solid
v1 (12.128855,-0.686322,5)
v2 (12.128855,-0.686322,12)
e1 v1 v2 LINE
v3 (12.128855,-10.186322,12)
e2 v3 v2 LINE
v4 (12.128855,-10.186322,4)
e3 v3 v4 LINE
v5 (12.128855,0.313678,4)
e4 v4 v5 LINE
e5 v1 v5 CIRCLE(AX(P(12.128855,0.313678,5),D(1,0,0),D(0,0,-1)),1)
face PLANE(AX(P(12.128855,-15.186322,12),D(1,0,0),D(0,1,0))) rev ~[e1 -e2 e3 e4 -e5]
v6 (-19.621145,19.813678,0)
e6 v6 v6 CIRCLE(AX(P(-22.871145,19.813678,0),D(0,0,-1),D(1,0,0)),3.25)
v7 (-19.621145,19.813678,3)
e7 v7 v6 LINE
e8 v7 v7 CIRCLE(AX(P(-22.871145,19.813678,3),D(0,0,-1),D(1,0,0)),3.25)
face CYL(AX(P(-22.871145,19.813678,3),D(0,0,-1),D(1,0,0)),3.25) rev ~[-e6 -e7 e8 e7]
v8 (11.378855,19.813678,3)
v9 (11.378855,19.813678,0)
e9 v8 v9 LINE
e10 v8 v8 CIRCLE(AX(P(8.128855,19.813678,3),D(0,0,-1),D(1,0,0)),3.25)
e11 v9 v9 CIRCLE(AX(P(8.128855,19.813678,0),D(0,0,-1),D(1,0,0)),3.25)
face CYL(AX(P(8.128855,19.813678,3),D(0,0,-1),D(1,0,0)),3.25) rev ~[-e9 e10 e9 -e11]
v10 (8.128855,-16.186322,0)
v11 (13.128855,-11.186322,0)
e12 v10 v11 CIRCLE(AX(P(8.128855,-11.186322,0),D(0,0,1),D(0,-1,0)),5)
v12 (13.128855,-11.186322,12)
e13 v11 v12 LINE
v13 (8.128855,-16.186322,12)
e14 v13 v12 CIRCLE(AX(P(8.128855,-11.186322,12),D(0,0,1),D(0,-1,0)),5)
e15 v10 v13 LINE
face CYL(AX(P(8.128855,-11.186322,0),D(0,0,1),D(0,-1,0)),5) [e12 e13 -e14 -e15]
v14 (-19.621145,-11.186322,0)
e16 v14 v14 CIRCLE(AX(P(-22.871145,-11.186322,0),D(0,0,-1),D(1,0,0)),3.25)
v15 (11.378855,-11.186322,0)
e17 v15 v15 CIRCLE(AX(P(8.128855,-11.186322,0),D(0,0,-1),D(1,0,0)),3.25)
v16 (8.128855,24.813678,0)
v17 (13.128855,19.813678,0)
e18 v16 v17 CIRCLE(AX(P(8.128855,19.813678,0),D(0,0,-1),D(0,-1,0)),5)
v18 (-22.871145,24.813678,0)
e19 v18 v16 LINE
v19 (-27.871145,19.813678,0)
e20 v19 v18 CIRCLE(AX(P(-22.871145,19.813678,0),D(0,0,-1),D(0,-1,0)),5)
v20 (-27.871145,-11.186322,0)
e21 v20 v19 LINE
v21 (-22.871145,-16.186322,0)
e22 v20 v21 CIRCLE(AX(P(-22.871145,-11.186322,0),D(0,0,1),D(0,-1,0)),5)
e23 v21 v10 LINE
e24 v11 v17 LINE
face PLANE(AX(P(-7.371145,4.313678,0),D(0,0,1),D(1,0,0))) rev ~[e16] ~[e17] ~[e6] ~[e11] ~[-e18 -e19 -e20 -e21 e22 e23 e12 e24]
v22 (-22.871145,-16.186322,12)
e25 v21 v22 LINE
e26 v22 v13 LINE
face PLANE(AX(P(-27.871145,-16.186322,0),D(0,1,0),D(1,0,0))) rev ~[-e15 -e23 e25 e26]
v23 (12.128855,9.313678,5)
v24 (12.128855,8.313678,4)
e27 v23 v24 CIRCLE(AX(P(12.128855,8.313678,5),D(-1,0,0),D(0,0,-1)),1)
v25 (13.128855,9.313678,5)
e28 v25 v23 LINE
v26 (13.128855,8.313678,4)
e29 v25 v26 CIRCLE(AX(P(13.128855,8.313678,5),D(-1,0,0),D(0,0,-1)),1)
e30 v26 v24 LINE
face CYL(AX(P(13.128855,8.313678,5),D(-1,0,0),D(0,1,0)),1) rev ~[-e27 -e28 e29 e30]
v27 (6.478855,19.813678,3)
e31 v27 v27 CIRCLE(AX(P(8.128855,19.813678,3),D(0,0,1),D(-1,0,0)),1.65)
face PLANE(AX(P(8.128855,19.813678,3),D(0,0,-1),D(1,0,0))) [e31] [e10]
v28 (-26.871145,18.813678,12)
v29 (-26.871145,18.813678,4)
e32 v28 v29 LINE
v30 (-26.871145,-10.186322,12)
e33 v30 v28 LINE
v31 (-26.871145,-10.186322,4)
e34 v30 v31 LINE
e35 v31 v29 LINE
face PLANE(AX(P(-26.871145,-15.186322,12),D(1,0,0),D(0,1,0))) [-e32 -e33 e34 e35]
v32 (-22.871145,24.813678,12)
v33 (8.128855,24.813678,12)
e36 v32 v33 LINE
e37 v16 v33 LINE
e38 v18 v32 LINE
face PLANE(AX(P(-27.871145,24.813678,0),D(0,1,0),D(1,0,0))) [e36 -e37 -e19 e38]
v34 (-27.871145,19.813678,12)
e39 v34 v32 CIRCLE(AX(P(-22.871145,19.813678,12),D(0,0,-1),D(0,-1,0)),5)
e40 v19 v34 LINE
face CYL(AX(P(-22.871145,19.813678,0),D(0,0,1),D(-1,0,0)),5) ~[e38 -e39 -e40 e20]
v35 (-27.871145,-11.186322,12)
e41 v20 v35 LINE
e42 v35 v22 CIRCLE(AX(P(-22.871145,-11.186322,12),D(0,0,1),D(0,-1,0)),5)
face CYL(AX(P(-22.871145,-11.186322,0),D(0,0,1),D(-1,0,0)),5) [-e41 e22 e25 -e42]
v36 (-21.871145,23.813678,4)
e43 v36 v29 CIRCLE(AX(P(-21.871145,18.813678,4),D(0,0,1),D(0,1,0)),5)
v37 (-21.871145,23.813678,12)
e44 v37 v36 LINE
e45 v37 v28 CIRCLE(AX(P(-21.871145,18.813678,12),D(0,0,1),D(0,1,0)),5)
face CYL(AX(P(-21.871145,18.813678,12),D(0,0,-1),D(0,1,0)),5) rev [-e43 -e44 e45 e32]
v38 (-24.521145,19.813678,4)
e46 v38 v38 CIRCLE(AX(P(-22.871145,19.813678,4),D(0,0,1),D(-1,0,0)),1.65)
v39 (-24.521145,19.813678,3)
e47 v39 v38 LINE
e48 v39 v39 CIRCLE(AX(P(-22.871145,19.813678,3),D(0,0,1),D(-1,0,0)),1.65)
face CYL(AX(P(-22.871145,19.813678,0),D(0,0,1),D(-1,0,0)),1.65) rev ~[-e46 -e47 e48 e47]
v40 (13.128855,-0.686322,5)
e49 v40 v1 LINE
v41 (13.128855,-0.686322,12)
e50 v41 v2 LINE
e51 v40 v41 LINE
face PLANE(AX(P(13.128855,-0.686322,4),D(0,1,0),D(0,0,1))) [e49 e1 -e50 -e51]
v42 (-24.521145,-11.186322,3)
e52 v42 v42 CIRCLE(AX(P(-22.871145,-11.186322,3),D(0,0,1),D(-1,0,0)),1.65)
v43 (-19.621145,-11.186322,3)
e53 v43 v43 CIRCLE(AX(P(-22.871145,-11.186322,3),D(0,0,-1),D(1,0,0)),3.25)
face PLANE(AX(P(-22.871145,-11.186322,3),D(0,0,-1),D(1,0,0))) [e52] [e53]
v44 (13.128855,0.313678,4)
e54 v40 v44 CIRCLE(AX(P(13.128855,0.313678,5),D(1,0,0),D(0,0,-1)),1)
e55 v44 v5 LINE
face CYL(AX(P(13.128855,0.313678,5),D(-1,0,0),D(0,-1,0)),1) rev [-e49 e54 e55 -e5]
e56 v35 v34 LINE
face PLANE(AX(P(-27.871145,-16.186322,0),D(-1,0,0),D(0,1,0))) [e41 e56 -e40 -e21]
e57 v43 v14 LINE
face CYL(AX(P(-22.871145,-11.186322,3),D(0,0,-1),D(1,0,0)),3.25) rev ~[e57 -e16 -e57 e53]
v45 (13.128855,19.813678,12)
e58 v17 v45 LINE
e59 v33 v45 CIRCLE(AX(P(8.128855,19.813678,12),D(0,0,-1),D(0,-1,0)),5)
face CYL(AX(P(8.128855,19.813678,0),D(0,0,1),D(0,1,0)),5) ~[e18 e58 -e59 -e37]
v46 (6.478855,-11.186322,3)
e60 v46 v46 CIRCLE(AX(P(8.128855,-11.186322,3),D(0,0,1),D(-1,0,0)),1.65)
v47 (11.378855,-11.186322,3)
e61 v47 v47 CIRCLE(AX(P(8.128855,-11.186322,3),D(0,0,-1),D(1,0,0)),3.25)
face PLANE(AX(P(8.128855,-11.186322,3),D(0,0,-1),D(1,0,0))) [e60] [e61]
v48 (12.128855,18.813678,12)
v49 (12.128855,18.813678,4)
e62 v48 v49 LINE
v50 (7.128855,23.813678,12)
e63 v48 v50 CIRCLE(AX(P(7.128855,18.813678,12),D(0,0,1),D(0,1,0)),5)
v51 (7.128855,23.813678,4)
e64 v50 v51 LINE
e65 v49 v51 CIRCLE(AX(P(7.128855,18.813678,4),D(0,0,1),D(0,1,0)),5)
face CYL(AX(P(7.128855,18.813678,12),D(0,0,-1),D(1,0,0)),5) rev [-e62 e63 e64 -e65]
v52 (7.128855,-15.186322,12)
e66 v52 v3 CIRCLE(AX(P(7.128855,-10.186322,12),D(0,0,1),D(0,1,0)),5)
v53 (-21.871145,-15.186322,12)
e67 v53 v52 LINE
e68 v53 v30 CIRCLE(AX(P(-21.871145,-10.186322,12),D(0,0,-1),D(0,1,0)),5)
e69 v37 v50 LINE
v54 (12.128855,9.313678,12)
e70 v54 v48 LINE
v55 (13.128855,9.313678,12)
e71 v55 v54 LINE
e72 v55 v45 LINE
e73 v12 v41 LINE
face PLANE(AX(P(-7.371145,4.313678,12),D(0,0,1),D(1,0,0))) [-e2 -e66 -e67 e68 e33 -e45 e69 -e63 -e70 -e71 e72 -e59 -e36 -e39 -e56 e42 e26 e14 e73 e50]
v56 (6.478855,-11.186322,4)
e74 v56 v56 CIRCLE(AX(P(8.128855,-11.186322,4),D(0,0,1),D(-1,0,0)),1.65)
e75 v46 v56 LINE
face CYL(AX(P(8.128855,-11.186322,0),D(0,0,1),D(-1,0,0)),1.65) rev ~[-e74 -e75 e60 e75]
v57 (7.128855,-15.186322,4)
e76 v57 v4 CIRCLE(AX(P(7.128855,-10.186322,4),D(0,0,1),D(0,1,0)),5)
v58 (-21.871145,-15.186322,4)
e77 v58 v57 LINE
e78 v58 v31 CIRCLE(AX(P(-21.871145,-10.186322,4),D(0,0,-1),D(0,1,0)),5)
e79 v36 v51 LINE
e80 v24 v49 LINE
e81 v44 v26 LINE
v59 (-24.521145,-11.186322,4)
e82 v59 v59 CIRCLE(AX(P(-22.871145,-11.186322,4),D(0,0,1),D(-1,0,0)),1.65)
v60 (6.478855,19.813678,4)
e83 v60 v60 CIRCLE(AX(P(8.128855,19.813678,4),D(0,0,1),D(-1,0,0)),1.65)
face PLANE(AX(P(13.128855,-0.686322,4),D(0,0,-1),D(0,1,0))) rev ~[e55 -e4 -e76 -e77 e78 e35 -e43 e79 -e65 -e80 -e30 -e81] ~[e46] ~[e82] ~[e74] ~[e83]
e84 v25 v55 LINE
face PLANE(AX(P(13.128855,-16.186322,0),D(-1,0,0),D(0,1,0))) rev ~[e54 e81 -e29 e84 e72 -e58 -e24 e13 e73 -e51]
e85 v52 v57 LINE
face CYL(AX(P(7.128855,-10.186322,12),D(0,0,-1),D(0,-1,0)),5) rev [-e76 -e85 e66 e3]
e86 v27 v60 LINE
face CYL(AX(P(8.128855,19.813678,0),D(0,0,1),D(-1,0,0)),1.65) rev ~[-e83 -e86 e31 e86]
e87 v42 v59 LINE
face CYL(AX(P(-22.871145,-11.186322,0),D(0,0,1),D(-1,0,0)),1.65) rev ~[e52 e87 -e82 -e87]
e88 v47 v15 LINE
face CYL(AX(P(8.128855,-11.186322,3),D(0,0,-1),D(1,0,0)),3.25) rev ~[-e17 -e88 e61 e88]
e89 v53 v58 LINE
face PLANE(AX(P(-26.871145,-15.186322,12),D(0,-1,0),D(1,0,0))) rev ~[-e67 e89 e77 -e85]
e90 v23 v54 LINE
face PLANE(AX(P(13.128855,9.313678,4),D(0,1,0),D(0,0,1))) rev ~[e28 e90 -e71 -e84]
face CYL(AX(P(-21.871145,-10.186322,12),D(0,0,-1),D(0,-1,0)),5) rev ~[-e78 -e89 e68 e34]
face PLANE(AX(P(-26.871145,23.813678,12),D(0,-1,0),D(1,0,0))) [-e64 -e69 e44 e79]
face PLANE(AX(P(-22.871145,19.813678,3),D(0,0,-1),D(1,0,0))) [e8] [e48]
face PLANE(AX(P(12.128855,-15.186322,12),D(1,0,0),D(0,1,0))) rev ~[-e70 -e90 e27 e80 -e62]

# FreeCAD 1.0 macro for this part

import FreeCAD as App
import Part
import Sketcher
from FreeCAD import Vector
Q = App.Units.Quantity


def edges_at(feature, points):
    """Names of the edges that pass closest to the given points."""
    edges = feature.Shape.Edges
    near = lambda p: min(range(len(edges)), key=lambda i: edges[i].distToShape(Part.Vertex(*p))[0])
    return sorted({f"Edge{near(p) + 1}" for p in points})


def add_polygon(sketch, points):
    """Adds a closed chain of lines whose ends are joined by coincident constraints."""
    first, n = sketch.GeometryCount, len(points)
    for a, b in zip(points, points[1:] + points[:1]):
        sketch.addGeometry(Part.LineSegment(App.Vector(*a, 0), App.Vector(*b, 0)), False)
    for i in range(n):
        sketch.addConstraint(Sketcher.Constraint("Coincident", first + i, 2, first + (i + 1) % n, 1))

doc = App.newDocument("Part")
body = doc.addObject("PartDesign::Body", "Body")

# Sketch on XY plane
sketch1 = body.newObject("Sketcher::SketchObject", "Sketch")
sketch1.AttachmentSupport = (doc.getObject("XY_Plane"), [""])
sketch1.MapMode = "FlatFace"
add_polygon(sketch1, [(-27.871145, 24.813678), (-27.871145, -16.186322), (13.128855, -16.186322), (13.128855, 24.813678)])  # lines 0-3
sketch1.addConstraint([
    Sketcher.Constraint("Vertical", 0),
    Sketcher.Constraint("Horizontal", 1),
    Sketcher.Constraint("Vertical", 2),
    Sketcher.Constraint("Horizontal", 3),
    Sketcher.Constraint("Equal", 3, 0),
    Sketcher.Constraint("DistanceX", 1, 1, 1, 2, Q("41 mm")),
    Sketcher.Constraint("DistanceY", 0, 2, -1, 1, Q("16.186322 mm")),
    Sketcher.Constraint("DistanceX", 0, 2, -1, 1, Q("27.871145 mm")),
])
pad1 = body.newObject("PartDesign::Pad", "Pad")
pad1.Profile = sketch1
pad1.Length = 12

# Sketch on XY plane
sketch2 = body.newObject("Sketcher::SketchObject", "Sketch001")
sketch2.AttachmentSupport = (doc.getObject("XY_Plane"), [""])
sketch2.MapMode = "FlatFace"
sketch2.addGeometry([
    Part.Circle(Vector(8.128855, 19.813678, 0), Vector(0, 0, 1), 1.65),
    Part.Circle(Vector(-22.871145, 19.813678, 0), Vector(0, 0, 1), 1.65),
    Part.Circle(Vector(-22.871145, -11.186322, 0), Vector(0, 0, 1), 1.65),
    Part.Circle(Vector(8.128855, -11.186322, 0), Vector(0, 0, 1), 1.65),
], False)
sketch2.addConstraint([
    Sketcher.Constraint("Equal", 0, 1),
    Sketcher.Constraint("Equal", 1, 2),
    Sketcher.Constraint("Equal", 2, 3),
    Sketcher.Constraint("Horizontal", 0, 3, 1, 3),
    Sketcher.Constraint("Horizontal", 2, 3, 3, 3),
    Sketcher.Constraint("Vertical", 1, 3, 2, 3),
    Sketcher.Constraint("Vertical", 0, 3, 3, 3),
    Sketcher.Constraint("Diameter", 0, Q("3.3 mm")),
    Sketcher.Constraint("DistanceX", 1, 3, 0, 3, Q("31 mm")),
    Sketcher.Constraint("DistanceY", 2, 3, 1, 3, Q("31 mm")),
    Sketcher.Constraint("DistanceY", -1, 1, 0, 3, Q("19.813678 mm")),
    Sketcher.Constraint("DistanceX", -1, 1, 0, 3, Q("8.128855 mm")),
])
doc.recompute()
hole = body.newObject("PartDesign::Hole", "Hole")
hole.Profile = sketch2
hole.ThreadType = "None"
hole.Diameter = 3.3
hole.DepthType = "Dimension"
hole.Depth = 20
hole.DrillPoint = "Angled"
hole.DrillPointAngle = 118
hole.HoleCutType = "Counterbore"
hole.HoleCutDiameter = 6.5
hole.HoleCutDepth = 3
hole.Reversed = True

# Sketch on XY plane
sketch3 = body.newObject("Sketcher::SketchObject", "Sketch002")
sketch3.AttachmentSupport = (doc.getObject("XY_Plane"), [""])
sketch3.MapMode = "FlatFace"
sketch3.AttachmentOffset = App.Placement(Vector(0, 0, 12), App.Rotation())
add_polygon(sketch3, [(-26.871145, 23.813678), (-26.871145, -15.186322), (12.128855, -15.186322), (12.128855, 23.813678)])  # lines 0-3
sketch3.addConstraint([
    Sketcher.Constraint("Vertical", 0),
    Sketcher.Constraint("Horizontal", 1),
    Sketcher.Constraint("Vertical", 2),
    Sketcher.Constraint("Horizontal", 3),
    Sketcher.Constraint("Equal", 3, 0),
    Sketcher.Constraint("DistanceX", 1, 1, 1, 2, Q("39 mm")),
    Sketcher.Constraint("DistanceY", 0, 2, -1, 1, Q("15.186322 mm")),
    Sketcher.Constraint("DistanceX", 0, 2, -1, 1, Q("26.871145 mm")),
])
pocket1 = body.newObject("PartDesign::Pocket", "Pocket")
pocket1.Profile = sketch3
pocket1.Length = 8
doc.recompute()

fillet = body.newObject("PartDesign::Fillet", "Fillet")
fillet.Base = (pocket1, edges_at(pocket1, [
    (13.129, -16.186, 6),
    (12.129, -15.186, 8),
    (-27.871, -16.186, 6),
    (-26.871, -15.186, 8),
    (-27.871, 24.814, 6),
    (-26.871, 23.814, 8),
    (13.129, 24.814, 6),
    (12.129, 23.814, 8),
]))
fillet.Radius = 5

# Sketch on YZ plane
sketch4 = body.newObject("Sketcher::SketchObject", "Sketch003")
sketch4.AttachmentSupport = (doc.getObject("YZ_Plane"), [""])
sketch4.MapMode = "FlatFace"
sketch4.AttachmentOffset = App.Placement(Vector(0, 0, 13.128855), App.Rotation())
add_polygon(sketch4, [(-0.686322, 12), (-0.686322, 4), (9.313678, 4), (9.313678, 12)])  # lines 0-3
sketch4.addConstraint([
    Sketcher.Constraint("Vertical", 0),
    Sketcher.Constraint("Horizontal", 1),
    Sketcher.Constraint("Vertical", 2),
    Sketcher.Constraint("Horizontal", 3),
    Sketcher.Constraint("DistanceX", 1, 1, 1, 2, Q("10 mm")),
    Sketcher.Constraint("DistanceY", 0, 2, 0, 1, Q("8 mm")),
    Sketcher.Constraint("DistanceY", -1, 1, 0, 2, Q("4 mm")),
    Sketcher.Constraint("DistanceX", 0, 2, -1, 1, Q("0.686322 mm")),
])
pocket2 = body.newObject("PartDesign::Pocket", "Pocket001")
pocket2.Profile = sketch4
pocket2.Length = 1
doc.recompute()

fillet2 = body.newObject("PartDesign::Fillet", "Fillet001")
fillet2.Base = (pocket2, edges_at(pocket2, [(12.629, 9.314, 4), (12.629, -0.686, 4)]))
fillet2.Radius = 1

doc.recompute()
